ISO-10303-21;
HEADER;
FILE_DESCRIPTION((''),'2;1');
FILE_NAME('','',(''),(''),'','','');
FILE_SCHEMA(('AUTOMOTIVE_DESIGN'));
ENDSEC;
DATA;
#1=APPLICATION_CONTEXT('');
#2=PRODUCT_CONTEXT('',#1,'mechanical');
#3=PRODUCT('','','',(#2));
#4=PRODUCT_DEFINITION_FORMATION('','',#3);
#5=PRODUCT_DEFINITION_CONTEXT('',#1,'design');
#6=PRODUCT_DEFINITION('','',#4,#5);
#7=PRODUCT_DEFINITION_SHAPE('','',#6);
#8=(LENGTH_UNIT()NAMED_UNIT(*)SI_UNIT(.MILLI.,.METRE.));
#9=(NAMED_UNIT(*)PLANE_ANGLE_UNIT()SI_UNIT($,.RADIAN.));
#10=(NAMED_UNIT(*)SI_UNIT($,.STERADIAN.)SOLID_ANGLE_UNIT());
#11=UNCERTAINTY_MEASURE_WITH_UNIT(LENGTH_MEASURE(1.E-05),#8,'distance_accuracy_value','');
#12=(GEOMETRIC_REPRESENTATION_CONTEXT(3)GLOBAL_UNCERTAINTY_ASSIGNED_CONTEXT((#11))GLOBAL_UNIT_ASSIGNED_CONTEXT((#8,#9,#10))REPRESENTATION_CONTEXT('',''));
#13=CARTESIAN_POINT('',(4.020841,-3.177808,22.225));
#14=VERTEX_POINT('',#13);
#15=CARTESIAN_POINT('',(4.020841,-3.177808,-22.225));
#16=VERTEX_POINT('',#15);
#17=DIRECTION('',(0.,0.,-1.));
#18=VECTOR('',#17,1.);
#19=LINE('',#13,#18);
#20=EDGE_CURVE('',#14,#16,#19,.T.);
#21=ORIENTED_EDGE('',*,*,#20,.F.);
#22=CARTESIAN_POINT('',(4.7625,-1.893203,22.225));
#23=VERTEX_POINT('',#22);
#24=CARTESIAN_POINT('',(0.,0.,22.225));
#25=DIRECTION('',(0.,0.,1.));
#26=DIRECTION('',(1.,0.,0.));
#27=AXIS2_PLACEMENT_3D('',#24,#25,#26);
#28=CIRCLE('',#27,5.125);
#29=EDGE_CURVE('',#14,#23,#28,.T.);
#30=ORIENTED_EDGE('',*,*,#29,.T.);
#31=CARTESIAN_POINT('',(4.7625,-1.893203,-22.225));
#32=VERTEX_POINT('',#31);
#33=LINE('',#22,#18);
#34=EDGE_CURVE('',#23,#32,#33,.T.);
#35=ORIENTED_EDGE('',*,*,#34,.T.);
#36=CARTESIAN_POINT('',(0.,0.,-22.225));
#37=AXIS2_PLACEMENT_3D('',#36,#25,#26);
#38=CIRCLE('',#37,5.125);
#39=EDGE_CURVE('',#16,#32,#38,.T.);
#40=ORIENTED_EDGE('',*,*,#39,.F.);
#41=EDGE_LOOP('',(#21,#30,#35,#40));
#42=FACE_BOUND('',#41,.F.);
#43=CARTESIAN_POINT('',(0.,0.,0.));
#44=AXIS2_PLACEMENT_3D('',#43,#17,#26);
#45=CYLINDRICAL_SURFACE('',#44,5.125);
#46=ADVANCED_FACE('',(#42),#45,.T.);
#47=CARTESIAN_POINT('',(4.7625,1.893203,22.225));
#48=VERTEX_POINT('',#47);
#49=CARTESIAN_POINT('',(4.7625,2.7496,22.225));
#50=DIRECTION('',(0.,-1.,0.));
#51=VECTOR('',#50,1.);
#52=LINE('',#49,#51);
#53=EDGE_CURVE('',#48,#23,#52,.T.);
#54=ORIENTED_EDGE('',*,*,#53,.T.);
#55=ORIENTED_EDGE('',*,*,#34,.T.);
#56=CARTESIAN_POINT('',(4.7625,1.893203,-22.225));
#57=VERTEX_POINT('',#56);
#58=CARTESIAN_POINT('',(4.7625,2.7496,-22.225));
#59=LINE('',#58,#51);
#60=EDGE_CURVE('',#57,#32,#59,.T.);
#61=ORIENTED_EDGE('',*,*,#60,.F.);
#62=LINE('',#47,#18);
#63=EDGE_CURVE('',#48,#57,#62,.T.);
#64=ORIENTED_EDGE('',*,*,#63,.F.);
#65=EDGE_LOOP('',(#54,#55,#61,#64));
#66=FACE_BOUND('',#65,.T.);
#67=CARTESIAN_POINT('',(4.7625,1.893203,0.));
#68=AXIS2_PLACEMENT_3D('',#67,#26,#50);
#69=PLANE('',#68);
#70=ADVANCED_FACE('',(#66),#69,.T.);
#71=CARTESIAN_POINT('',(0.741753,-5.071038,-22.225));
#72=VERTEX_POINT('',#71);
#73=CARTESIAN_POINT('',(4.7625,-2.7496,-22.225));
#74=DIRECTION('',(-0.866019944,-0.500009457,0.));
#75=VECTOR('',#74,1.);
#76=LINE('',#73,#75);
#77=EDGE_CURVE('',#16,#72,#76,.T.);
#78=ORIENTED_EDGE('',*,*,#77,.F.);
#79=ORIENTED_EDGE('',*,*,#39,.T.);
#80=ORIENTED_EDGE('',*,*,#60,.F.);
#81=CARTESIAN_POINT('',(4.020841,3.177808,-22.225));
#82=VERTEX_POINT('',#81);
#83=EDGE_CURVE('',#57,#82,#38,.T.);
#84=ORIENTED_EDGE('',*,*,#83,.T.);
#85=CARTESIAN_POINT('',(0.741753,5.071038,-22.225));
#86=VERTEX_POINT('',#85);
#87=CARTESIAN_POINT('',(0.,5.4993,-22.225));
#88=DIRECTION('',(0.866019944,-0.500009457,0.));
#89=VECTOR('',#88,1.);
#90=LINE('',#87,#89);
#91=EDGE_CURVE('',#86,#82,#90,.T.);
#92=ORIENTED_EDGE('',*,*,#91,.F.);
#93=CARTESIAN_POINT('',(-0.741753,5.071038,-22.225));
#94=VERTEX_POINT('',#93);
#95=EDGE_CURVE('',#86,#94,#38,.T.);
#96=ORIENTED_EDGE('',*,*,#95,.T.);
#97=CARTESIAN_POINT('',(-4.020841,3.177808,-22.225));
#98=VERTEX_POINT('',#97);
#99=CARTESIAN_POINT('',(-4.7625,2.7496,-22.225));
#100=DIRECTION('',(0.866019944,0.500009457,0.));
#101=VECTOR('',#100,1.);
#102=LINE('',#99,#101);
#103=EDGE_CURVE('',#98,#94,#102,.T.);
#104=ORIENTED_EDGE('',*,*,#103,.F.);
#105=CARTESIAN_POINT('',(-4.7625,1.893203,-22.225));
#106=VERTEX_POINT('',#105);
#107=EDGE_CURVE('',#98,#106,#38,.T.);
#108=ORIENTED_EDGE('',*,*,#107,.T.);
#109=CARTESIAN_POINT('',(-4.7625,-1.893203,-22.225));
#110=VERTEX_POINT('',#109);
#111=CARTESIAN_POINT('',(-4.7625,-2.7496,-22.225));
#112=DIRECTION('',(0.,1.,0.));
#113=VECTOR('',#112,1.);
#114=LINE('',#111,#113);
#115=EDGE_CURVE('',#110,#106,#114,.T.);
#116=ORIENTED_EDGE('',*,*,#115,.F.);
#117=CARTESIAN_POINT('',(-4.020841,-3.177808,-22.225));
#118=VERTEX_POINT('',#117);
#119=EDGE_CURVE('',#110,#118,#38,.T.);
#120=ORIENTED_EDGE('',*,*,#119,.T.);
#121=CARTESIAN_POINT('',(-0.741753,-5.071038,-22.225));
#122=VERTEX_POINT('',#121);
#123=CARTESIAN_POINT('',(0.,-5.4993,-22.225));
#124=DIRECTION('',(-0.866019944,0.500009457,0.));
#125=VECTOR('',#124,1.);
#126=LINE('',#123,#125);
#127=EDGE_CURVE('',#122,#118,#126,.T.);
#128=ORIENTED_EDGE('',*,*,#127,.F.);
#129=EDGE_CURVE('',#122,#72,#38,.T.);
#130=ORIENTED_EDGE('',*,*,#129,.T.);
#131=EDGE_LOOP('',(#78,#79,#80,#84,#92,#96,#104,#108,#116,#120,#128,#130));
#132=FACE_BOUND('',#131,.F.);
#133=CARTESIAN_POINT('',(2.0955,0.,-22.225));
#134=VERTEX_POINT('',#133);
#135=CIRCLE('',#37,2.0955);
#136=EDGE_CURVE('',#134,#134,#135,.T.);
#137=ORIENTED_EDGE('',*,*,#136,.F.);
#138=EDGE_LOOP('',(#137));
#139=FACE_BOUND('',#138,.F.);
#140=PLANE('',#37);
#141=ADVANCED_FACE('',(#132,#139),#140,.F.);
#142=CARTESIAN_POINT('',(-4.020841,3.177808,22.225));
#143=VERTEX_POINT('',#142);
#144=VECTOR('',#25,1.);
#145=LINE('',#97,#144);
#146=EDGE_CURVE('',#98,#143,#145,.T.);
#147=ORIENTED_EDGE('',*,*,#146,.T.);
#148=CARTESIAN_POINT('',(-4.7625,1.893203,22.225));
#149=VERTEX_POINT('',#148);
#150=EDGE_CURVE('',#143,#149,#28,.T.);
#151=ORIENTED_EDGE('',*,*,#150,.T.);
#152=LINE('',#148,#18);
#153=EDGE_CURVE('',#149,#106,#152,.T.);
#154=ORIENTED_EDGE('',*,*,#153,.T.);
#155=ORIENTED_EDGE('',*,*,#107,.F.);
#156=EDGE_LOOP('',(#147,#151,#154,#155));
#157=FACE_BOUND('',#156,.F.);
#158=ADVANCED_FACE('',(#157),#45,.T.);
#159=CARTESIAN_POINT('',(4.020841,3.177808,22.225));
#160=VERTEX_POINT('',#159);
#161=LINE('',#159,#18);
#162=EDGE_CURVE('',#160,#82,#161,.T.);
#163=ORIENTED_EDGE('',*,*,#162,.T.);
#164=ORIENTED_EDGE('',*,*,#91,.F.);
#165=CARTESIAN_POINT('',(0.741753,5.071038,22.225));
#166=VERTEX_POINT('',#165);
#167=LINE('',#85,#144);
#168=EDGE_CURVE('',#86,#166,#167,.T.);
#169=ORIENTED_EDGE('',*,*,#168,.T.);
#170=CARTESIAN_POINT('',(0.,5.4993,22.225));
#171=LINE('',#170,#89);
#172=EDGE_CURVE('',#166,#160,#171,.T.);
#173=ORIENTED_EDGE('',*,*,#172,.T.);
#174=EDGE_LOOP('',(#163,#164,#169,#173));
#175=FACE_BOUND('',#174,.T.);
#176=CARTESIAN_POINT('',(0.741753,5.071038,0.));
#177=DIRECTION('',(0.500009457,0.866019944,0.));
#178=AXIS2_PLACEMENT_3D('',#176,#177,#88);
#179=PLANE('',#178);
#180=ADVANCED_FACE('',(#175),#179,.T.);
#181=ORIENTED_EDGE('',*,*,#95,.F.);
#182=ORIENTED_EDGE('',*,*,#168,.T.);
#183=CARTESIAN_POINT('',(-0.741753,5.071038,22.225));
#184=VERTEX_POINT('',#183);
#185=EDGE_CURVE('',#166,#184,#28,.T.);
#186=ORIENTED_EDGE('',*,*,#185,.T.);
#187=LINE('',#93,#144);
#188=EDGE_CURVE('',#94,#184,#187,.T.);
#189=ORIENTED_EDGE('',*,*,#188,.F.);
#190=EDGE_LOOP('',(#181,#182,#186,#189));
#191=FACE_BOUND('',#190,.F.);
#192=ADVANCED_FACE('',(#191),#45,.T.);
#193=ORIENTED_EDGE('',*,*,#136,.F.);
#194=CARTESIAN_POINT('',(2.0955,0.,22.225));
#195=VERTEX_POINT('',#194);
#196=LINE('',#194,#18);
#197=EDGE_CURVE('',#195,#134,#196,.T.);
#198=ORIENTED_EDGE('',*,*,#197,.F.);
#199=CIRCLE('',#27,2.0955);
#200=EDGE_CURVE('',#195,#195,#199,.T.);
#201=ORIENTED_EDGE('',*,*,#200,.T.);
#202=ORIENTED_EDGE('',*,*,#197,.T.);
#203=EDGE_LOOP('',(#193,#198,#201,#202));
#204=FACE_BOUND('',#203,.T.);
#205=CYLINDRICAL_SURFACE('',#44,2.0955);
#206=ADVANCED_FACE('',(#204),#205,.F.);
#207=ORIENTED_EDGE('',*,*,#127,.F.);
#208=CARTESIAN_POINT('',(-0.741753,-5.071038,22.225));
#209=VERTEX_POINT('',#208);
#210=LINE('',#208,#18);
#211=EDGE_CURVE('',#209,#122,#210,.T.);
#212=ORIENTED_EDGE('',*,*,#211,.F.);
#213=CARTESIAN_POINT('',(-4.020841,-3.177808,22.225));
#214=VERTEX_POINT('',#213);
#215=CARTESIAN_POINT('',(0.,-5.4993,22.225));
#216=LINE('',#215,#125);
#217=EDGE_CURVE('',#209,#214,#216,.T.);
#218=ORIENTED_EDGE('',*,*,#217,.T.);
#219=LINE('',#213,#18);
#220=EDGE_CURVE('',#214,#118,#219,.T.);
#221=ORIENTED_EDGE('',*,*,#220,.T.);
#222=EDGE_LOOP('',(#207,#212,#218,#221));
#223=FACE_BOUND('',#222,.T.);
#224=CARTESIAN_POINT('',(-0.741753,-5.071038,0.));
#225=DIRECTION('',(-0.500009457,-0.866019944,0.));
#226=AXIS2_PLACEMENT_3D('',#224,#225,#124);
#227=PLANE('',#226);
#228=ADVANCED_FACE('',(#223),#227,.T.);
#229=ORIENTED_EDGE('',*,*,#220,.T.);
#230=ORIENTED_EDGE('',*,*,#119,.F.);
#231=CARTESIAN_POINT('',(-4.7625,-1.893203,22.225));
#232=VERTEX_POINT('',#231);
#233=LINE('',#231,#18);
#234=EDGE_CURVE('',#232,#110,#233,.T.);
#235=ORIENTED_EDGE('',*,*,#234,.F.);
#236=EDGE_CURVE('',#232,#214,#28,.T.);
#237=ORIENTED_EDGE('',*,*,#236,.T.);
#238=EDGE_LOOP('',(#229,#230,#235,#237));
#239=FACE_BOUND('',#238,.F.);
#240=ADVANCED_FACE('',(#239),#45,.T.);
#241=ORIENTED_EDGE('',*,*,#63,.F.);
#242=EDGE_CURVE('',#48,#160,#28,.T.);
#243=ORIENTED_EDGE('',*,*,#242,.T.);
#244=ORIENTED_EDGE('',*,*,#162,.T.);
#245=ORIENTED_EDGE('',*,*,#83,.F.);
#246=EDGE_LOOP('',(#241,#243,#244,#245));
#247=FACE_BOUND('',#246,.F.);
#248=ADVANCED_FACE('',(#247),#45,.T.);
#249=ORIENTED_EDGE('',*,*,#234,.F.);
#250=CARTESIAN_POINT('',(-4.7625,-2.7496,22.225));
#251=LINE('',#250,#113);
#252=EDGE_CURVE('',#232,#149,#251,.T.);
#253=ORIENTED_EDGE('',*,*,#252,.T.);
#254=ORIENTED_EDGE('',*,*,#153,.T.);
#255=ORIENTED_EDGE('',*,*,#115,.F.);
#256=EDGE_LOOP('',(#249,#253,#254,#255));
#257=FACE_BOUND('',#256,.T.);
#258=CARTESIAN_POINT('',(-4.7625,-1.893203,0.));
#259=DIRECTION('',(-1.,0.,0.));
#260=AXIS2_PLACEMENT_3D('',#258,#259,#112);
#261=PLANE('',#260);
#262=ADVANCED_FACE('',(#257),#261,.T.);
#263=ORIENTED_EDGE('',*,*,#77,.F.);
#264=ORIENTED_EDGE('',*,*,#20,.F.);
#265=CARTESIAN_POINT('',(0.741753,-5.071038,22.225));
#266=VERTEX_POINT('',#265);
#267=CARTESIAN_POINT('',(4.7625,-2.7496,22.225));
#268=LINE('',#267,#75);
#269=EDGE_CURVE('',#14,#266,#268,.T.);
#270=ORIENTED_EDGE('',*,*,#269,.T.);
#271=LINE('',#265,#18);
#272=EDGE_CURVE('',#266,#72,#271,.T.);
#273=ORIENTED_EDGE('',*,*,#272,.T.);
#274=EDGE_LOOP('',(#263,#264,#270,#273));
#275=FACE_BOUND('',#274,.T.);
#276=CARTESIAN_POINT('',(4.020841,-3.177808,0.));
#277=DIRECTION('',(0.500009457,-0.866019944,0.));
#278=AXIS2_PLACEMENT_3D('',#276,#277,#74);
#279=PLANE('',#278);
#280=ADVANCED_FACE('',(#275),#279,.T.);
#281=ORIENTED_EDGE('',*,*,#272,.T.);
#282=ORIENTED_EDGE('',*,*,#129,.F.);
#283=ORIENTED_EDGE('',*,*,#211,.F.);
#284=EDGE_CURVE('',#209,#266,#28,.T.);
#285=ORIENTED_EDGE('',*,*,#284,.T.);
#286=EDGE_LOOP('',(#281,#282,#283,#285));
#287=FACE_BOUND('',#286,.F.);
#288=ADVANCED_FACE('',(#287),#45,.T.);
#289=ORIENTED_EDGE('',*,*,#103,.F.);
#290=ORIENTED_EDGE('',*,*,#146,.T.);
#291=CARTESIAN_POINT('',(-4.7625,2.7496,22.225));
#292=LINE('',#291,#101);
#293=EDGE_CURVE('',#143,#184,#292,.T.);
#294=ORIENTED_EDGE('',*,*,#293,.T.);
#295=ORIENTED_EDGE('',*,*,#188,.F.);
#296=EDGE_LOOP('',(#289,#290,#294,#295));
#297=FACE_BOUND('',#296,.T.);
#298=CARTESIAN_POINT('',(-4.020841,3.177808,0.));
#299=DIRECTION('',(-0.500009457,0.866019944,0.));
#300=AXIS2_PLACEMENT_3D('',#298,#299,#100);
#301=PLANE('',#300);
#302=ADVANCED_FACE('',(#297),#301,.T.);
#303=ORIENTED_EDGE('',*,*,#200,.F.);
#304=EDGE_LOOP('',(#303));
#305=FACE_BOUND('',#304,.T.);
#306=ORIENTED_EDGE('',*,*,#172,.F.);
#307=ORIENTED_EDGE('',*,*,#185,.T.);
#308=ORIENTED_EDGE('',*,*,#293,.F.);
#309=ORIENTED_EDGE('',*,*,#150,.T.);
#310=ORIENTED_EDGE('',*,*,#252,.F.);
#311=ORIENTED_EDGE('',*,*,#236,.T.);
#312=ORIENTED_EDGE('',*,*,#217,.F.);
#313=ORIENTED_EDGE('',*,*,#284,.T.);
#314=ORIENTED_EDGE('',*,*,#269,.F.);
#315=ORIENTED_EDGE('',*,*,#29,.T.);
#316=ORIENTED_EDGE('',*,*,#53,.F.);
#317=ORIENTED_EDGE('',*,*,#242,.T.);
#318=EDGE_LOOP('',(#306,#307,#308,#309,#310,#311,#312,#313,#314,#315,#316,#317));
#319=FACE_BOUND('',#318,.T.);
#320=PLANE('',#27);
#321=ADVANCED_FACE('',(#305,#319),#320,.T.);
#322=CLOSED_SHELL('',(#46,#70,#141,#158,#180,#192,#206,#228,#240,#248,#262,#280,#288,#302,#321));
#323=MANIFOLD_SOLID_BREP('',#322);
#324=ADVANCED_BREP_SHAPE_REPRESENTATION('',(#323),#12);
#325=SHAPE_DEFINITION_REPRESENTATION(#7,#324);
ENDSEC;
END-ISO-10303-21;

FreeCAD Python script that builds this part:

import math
import FreeCAD as App
import Part
import Sketcher
from FreeCAD import Vector
Q = App.Units.Quantity

doc = App.newDocument("Part")
params = doc.addObject("Spreadsheet::Sheet", "Params")
for row, (alias, value) in enumerate([
    ("sketch1_diameter", "0.165 in"),
    ("pad1_length", "1.75 in"),
], start=1):
    params.set(f"A{row}", alias)
    params.set(f"B{row}", "=" + value)
    params.setAlias(f"B{row}", alias)

body = doc.addObject("PartDesign::Body", "Body")

# Sketch on XY plane
sketch1 = body.newObject("Sketcher::SketchObject", "Sketch")
sketch1.AttachmentSupport = (doc.getObject("XY_Plane"), [""])
sketch1.MapMode = "FlatFace"
sketch1.addGeometry([
    Part.LineSegment(Vector(4, 3.2, 0), Vector(0.7, 5.1, 0)),  # 0
    Part.ArcOfCircle(Part.Circle(Vector(0, 0, 0), Vector(0, 0, 1), 5.1), math.radians(81.68), math.radians(98.32)),  # 1
    Part.LineSegment(Vector(-0.7, 5.1, 0), Vector(-4, 3.2, 0)),  # 2
    Part.ArcOfCircle(Part.Circle(Vector(0, 0, 0), Vector(0, 0, 1), 5.1), math.radians(141.68), math.radians(158.32)),  # 3
    Part.LineSegment(Vector(-4.8, 1.9, 0), Vector(-4.8, -1.9, 0)),  # 4
    Part.ArcOfCircle(Part.Circle(Vector(0, 0, 0), Vector(0, 0, 1), 5.1), math.radians(-158.32), math.radians(-141.68)),  # 5
    Part.LineSegment(Vector(-4, -3.2, 0), Vector(-0.7, -5.1, 0)),  # 6
    Part.ArcOfCircle(Part.Circle(Vector(0, 0, 0), Vector(0, 0, 1), 5.1), math.radians(-98.32), math.radians(-81.68)),  # 7
    Part.LineSegment(Vector(0.7, -5.1, 0), Vector(4, -3.2, 0)),  # 8
    Part.ArcOfCircle(Part.Circle(Vector(0, 0, 0), Vector(0, 0, 1), 5.1), math.radians(-38.32), math.radians(-21.68)),  # 9
    Part.LineSegment(Vector(4.8, -1.9, 0), Vector(4.8, 1.9, 0)),  # 10
    Part.ArcOfCircle(Part.Circle(Vector(0, 0, 0), Vector(0, 0, 1), 5.1), math.radians(21.68), math.radians(38.32)),  # 11
    Part.Circle(Vector(0, 0, 0), Vector(0, 0, 1), 2.1),  # 12
], False)
sketch1.addConstraint([
    Sketcher.Constraint("Coincident", 0, 2, 1, 1),
    Sketcher.Constraint("Coincident", 1, 2, 2, 1),
    Sketcher.Constraint("Coincident", 2, 2, 3, 1),
    Sketcher.Constraint("Coincident", 3, 2, 4, 1),
    Sketcher.Constraint("Coincident", 4, 2, 5, 1),
    Sketcher.Constraint("Coincident", 5, 2, 6, 1),
    Sketcher.Constraint("Coincident", 6, 2, 7, 1),
    Sketcher.Constraint("Coincident", 7, 2, 8, 1),
    Sketcher.Constraint("Coincident", 8, 2, 9, 1),
    Sketcher.Constraint("Coincident", 9, 2, 10, 1),
    Sketcher.Constraint("Coincident", 10, 2, 11, 1),
    Sketcher.Constraint("Coincident", 11, 2, 0, 1),
    Sketcher.Constraint("Vertical", 4),
    Sketcher.Constraint("Vertical", 10),
    Sketcher.Constraint("Coincident", 1, 3, -1, 1),
    Sketcher.Constraint("Coincident", 3, 3, -1, 1),
    Sketcher.Constraint("Coincident", 5, 3, -1, 1),
    Sketcher.Constraint("Coincident", 7, 3, -1, 1),
    Sketcher.Constraint("Coincident", 9, 3, -1, 1),
    Sketcher.Constraint("Coincident", 11, 3, -1, 1),
    Sketcher.Constraint("Coincident", 12, 3, -1, 1),
    Sketcher.Constraint("Equal", 1, 3),
    Sketcher.Constraint("Equal", 3, 5),
    Sketcher.Constraint("Equal", 5, 7),
    Sketcher.Constraint("Equal", 7, 9),
    Sketcher.Constraint("Equal", 9, 11),
    Sketcher.Constraint("Parallel", 0, 6),
    Sketcher.Constraint("Parallel", 2, 8),
    Sketcher.Constraint("Horizontal", 0, 2, 1, 2),
    Sketcher.Constraint("Horizontal", 6, 2, 7, 2),
    Sketcher.Constraint("Horizontal", 5, 2, 8, 2),
    Sketcher.Constraint("Horizontal", 4, 2, 9, 2),
    Sketcher.Constraint("Vertical", 2, 2, 5, 2),
    Sketcher.Constraint("Diameter", 12, Q("0.165 in")),
    Sketcher.Constraint("Radius", 1, Q("5.125 mm")),
    Sketcher.Constraint("Angle", 0, Q("149.9994 deg")),
    Sketcher.Constraint("DistanceX", 3, 2, -1, 1, Q("0.1875 in")),
    Sketcher.Constraint("DistanceX", -1, 1, 0, 2, Q("0.0292 in")),
])
sketch1.setExpression("Constraints[33]", "Params.sketch1_diameter")
pad1 = body.newObject("PartDesign::Pad", "Pad")
pad1.Profile = sketch1
pad1.setExpression("Length", "Params.pad1_length")
pad1.Midplane = True

doc.recompute()
